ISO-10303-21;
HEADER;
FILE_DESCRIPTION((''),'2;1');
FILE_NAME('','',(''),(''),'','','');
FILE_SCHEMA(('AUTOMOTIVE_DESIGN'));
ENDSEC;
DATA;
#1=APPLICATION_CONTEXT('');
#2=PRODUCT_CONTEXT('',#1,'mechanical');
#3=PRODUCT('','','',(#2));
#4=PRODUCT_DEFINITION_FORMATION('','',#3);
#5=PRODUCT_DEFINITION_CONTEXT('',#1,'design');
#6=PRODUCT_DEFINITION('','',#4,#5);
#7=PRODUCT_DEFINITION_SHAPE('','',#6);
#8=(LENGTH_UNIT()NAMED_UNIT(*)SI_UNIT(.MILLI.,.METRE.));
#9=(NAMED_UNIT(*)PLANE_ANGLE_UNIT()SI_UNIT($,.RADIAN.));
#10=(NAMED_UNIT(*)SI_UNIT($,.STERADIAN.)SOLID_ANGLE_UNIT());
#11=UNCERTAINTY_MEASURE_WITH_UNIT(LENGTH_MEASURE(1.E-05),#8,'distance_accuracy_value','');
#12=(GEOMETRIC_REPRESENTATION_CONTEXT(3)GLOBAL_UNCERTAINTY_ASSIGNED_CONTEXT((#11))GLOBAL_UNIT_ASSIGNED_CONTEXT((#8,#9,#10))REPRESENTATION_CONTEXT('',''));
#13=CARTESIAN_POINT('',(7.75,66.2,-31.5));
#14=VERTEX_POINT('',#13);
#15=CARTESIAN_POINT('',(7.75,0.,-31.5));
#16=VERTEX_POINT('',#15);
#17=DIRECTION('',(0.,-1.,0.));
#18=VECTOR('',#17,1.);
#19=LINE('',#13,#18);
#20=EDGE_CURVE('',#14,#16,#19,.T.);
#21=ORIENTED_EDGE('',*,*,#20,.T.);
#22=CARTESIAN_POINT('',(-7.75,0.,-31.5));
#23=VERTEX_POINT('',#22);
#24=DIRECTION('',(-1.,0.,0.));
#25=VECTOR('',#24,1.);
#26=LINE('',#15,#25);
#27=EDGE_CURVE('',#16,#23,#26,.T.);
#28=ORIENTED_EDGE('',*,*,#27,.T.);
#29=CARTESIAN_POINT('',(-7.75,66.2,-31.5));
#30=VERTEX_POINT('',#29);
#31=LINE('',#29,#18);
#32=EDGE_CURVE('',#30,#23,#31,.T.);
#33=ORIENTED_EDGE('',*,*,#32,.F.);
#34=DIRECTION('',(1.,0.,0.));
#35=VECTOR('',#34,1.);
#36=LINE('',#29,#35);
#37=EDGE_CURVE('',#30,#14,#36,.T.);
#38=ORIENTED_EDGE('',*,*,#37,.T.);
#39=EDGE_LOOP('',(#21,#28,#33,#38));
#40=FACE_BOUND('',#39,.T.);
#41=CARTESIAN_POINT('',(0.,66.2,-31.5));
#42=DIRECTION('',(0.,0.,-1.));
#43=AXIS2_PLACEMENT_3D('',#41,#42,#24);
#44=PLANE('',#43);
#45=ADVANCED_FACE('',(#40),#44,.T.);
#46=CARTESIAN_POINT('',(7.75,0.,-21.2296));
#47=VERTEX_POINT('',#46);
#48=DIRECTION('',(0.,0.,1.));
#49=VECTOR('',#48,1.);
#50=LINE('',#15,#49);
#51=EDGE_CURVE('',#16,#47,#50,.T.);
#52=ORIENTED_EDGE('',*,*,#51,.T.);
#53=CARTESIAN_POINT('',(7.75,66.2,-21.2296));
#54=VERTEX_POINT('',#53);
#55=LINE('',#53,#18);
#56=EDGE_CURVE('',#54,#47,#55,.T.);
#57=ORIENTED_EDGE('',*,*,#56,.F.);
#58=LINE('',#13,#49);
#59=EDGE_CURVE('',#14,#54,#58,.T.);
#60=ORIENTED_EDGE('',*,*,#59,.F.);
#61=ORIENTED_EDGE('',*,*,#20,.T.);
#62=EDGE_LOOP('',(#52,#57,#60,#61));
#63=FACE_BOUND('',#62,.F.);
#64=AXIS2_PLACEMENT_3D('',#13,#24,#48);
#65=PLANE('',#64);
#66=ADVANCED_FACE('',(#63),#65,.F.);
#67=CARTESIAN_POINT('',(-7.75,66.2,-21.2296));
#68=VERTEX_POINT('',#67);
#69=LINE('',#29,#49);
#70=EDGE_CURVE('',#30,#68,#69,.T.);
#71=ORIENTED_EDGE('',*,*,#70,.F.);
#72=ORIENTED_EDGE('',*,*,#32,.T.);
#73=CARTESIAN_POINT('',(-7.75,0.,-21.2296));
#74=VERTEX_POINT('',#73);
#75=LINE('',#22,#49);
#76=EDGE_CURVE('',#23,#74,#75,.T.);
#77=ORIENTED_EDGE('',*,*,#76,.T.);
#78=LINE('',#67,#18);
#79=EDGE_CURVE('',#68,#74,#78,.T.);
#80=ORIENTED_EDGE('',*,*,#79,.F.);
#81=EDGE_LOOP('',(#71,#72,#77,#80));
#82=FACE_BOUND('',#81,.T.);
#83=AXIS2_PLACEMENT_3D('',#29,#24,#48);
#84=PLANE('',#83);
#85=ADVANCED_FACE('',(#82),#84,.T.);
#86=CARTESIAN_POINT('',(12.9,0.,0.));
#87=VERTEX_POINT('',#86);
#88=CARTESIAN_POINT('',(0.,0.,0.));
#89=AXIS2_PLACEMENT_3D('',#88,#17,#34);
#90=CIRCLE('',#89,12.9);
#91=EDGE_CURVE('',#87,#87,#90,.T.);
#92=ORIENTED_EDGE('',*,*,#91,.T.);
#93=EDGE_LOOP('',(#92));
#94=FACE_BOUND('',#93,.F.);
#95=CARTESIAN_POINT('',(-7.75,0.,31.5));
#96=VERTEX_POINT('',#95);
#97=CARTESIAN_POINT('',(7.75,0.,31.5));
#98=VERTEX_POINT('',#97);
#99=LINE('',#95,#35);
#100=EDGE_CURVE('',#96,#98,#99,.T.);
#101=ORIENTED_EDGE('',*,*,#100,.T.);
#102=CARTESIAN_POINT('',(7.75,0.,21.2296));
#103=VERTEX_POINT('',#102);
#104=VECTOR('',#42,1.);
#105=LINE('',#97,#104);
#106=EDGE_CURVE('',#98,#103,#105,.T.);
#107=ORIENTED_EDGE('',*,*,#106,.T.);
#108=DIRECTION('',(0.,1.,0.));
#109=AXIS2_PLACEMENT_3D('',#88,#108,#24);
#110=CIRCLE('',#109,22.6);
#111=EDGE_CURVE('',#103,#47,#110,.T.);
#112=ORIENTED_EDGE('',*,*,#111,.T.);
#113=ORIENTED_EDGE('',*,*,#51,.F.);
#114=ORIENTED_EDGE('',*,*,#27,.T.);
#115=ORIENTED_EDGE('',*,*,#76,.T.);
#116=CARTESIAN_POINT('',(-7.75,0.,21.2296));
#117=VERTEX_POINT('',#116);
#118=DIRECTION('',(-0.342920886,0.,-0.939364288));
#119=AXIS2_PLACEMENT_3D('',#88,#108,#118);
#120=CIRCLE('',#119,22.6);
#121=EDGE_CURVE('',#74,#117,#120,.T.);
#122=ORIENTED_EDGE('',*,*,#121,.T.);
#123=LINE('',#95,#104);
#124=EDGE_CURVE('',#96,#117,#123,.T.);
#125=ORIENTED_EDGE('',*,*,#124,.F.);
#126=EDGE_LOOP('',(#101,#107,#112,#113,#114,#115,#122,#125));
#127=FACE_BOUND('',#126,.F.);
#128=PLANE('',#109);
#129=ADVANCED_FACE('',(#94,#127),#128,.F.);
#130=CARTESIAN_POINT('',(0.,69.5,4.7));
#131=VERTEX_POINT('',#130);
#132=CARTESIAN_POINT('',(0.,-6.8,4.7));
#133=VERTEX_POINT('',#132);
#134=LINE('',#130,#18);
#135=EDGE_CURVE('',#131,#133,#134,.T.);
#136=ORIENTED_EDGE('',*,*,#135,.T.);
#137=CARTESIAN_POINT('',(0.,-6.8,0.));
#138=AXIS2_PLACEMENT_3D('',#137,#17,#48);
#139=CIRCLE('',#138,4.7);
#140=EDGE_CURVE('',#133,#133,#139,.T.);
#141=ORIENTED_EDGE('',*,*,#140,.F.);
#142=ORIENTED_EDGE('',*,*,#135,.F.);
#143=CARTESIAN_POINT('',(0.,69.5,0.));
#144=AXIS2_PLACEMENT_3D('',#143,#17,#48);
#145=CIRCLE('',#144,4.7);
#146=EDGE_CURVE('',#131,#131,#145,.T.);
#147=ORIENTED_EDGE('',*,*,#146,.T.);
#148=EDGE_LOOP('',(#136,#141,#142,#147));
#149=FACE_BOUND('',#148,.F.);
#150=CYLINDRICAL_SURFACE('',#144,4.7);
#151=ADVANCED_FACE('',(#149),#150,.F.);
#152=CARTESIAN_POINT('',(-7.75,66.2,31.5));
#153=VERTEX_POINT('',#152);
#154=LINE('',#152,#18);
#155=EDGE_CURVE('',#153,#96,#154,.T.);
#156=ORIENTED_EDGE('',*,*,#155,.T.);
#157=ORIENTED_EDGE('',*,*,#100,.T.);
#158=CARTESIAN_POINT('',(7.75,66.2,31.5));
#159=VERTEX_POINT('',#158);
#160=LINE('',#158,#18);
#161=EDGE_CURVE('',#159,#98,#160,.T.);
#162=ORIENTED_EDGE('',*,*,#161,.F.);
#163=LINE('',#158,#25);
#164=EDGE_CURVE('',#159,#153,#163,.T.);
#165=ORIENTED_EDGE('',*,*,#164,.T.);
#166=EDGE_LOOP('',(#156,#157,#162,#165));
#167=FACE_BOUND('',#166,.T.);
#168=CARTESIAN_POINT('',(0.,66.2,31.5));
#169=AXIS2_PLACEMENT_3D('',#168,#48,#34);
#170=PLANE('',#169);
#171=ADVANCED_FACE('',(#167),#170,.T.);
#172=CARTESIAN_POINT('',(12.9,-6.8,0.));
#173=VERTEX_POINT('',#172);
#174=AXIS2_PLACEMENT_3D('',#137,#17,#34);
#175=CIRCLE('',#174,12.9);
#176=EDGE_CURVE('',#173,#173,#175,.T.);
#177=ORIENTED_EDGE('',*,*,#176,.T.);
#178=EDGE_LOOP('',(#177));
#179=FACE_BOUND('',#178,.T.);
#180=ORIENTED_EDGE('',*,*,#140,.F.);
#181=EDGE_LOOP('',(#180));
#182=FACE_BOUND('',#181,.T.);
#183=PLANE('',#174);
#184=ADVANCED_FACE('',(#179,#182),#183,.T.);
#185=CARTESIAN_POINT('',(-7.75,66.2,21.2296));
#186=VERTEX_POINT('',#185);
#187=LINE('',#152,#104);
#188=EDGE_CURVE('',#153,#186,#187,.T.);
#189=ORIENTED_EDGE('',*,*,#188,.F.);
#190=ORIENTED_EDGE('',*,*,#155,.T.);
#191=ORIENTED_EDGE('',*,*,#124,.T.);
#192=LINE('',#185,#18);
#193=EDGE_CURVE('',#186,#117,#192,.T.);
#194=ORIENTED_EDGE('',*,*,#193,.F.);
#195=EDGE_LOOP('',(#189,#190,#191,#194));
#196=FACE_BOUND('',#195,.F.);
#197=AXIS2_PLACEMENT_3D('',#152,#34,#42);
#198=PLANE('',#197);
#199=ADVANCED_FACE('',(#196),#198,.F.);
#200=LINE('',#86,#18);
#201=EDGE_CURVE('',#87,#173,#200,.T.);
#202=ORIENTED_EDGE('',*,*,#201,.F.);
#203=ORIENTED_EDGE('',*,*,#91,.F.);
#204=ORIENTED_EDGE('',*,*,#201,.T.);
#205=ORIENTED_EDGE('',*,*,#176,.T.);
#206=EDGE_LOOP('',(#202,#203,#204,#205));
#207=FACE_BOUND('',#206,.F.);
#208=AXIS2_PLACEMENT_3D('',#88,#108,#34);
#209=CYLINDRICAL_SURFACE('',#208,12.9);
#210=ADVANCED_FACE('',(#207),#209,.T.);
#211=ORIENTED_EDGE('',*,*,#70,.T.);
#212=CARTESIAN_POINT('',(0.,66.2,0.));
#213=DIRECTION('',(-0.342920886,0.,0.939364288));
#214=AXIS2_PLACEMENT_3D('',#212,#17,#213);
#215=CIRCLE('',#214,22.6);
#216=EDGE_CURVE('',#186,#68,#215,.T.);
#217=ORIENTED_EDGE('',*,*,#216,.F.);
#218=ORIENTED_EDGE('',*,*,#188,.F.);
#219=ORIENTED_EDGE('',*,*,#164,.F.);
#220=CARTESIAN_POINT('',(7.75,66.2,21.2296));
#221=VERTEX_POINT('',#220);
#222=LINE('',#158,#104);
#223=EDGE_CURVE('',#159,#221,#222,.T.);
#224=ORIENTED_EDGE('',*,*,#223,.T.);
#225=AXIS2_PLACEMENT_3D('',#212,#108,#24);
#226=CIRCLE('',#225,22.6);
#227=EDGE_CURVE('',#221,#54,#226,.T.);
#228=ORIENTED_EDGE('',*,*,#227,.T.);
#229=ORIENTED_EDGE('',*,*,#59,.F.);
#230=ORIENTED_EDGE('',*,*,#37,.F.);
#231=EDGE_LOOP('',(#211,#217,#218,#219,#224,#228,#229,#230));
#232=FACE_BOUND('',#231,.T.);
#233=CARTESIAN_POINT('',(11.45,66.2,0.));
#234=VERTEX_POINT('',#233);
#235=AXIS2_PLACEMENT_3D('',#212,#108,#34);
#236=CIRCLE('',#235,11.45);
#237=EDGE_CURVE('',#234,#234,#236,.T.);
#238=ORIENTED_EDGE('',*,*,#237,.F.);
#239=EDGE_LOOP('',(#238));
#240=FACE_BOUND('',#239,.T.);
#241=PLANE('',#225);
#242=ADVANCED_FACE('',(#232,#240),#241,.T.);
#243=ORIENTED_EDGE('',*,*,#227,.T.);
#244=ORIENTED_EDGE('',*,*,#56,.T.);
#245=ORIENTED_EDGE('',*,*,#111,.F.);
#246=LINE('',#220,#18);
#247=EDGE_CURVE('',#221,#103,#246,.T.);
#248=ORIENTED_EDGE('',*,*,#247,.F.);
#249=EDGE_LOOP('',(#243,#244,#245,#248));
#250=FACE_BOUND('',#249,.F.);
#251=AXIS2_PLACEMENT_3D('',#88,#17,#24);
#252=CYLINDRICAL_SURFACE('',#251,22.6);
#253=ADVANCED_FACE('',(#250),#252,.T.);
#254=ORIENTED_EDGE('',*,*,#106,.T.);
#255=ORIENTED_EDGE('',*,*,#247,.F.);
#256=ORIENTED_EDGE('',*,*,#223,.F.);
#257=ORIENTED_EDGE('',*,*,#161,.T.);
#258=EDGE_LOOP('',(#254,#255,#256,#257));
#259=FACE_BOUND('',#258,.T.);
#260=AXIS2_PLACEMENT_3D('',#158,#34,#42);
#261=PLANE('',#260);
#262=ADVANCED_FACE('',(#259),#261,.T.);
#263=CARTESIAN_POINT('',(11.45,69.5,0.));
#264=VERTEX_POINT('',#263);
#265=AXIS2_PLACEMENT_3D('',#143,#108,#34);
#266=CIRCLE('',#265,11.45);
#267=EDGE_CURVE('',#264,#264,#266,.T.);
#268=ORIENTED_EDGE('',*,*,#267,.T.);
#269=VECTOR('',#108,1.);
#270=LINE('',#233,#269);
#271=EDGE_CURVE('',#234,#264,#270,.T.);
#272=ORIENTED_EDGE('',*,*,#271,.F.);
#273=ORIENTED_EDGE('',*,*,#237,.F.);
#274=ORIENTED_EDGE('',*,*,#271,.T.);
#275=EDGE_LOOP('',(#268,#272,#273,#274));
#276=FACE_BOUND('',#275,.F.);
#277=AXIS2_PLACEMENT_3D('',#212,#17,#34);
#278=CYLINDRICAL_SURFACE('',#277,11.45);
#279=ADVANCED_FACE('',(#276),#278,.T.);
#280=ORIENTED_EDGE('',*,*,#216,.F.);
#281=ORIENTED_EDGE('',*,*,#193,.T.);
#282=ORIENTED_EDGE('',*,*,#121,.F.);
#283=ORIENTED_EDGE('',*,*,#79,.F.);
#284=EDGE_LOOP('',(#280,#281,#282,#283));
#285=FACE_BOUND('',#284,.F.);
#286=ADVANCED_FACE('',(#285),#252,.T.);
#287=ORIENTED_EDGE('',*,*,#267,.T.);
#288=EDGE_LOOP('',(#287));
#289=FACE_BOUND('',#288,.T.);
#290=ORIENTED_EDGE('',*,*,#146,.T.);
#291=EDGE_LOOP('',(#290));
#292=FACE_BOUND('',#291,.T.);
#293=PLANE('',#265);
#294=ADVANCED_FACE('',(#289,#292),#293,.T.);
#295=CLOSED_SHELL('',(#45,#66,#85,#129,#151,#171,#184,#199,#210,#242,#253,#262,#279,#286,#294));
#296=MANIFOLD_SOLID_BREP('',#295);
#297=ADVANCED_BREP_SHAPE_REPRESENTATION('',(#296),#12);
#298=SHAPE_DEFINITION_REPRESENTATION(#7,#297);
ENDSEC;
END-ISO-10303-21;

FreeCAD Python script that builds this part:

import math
import FreeCAD as App
import Part
import Sketcher
from FreeCAD import Vector

doc = App.newDocument("Part")
body = doc.addObject("PartDesign::Body", "Body")

# Sketch on XZ plane
sketch1 = body.newObject("Sketcher::SketchObject", "Sketch")
sketch1.AttachmentSupport = (doc.getObject("XZ_Plane"), [""])
sketch1.MapMode = "FlatFace"
sketch1.addGeometry(Part.Circle(Vector(0, 0, 0), Vector(0, 0, 1), 23), False)
sketch1.addConstraint([
    Sketcher.Constraint("Coincident", 0, 3, -1, 1),
    Sketcher.Constraint("Diameter", 0, 45.2),
])
pad1 = body.newObject("PartDesign::Pad", "Pad")
pad1.Profile = sketch1
pad1.Length = 66.2
pad1.Reversed = True

# Sketch on XZ plane
sketch2 = body.newObject("Sketcher::SketchObject", "Sketch001")
sketch2.AttachmentSupport = (doc.getObject("XZ_Plane"), [""])
sketch2.MapMode = "FlatFace"
sketch2.AttachmentOffset = App.Placement(Vector(0, 0, -66.2), App.Rotation())
sketch2.addGeometry(Part.Circle(Vector(0, 0, 0), Vector(0, 0, 1), 11), False)
sketch2.addConstraint([
    Sketcher.Constraint("Coincident", 0, 3, -1, 1),
    Sketcher.Constraint("Diameter", 0, 22.9),
])
pad2 = body.newObject("PartDesign::Pad", "Pad001")
pad2.Profile = sketch2
pad2.Length = 3.3
pad2.Reversed = True

# Sketch on XZ plane
sketch3 = body.newObject("Sketcher::SketchObject", "Sketch002")
sketch3.AttachmentSupport = (doc.getObject("XZ_Plane"), [""])
sketch3.MapMode = "FlatFace"
sketch3.addGeometry(Part.Circle(Vector(0, 0, 0), Vector(0, 0, 1), 13), False)
sketch3.addConstraint([
    Sketcher.Constraint("Coincident", 0, 3, -1, 1),
    Sketcher.Constraint("Diameter", 0, 25.8),
])
pad3 = body.newObject("PartDesign::Pad", "Pad002")
pad3.Profile = sketch3
pad3.Length = 6.8

# Sketch on XZ plane
sketch4 = body.newObject("Sketcher::SketchObject", "Sketch003")
sketch4.AttachmentSupport = (doc.getObject("XZ_Plane"), [""])
sketch4.MapMode = "FlatFace"
sketch4.AttachmentOffset = App.Placement(Vector(0, 0, -69.5), App.Rotation())
sketch4.addGeometry(Part.Circle(Vector(0, 0, 0), Vector(0, 0, 1), 4.7), False)
sketch4.addConstraint([
    Sketcher.Constraint("Coincident", 0, 3, -1, 1),
    Sketcher.Constraint("Diameter", 0, 9.4),
])
doc.recompute()
hole = body.newObject("PartDesign::Hole", "Hole")
hole.Profile = sketch4
hole.ThreadType = "None"
hole.Diameter = 9.4
hole.DepthType = "Dimension"
hole.Depth = 92.25
hole.DrillPoint = "Angled"
hole.DrillPointAngle = 118
hole.Reversed = True

# Sketch on XZ plane
sketch5 = body.newObject("Sketcher::SketchObject", "Sketch004")
sketch5.AttachmentSupport = (doc.getObject("XZ_Plane"), [""])
sketch5.MapMode = "FlatFace"
sketch5.AttachmentOffset = App.Placement(Vector(0, 0, -66.2), App.Rotation())
sketch5.addGeometry([
    Part.ArcOfCircle(Part.Circle(Vector(0, 0, 0), Vector(0, 0, 1), 23), math.radians(-110), math.radians(-70)),  # 0
    Part.LineSegment(Vector(8, -21, 0), Vector(8, -32, 0)),  # 1
    Part.LineSegment(Vector(8, -32, 0), Vector(-8, -32, 0)),  # 2
    Part.LineSegment(Vector(-8, -32, 0), Vector(-8, -21, 0)),  # 3
    Part.LineSegment(Vector(8, 32, 0), Vector(8, 21, 0)),  # 4
    Part.ArcOfCircle(Part.Circle(Vector(0, 0, 0), Vector(0, 0, 1), 23), math.radians(70), math.radians(110)),  # 5
    Part.LineSegment(Vector(-8, 21, 0), Vector(-8, 32, 0)),  # 6
    Part.LineSegment(Vector(-8, 32, 0), Vector(8, 32, 0)),  # 7
], False)
sketch5.addConstraint([
    Sketcher.Constraint("Coincident", 0, 2, 1, 1),
    Sketcher.Constraint("Coincident", 1, 2, 2, 1),
    Sketcher.Constraint("Coincident", 2, 2, 3, 1),
    Sketcher.Constraint("Coincident", 3, 2, 0, 1),
    Sketcher.Constraint("Coincident", 4, 2, 5, 1),
    Sketcher.Constraint("Coincident", 5, 2, 6, 1),
    Sketcher.Constraint("Coincident", 6, 2, 7, 1),
    Sketcher.Constraint("Coincident", 7, 2, 4, 1),
    Sketcher.Constraint("Vertical", 1),
    Sketcher.Constraint("Horizontal", 2),
    Sketcher.Constraint("Vertical", 3),
    Sketcher.Constraint("Vertical", 4),
    Sketcher.Constraint("Vertical", 6),
    Sketcher.Constraint("Horizontal", 7),
    Sketcher.Constraint("Coincident", 0, 3, -1, 1),
    Sketcher.Constraint("Coincident", 5, 3, -1, 1),
    Sketcher.Constraint("Equal", 0, 5),
    Sketcher.Constraint("Symmetric", 1, 2, 6, 2, -1, 1),
    Sketcher.Constraint("Horizontal", 0, 2, 3, 2),
    Sketcher.Constraint("Horizontal", 4, 2, 5, 2),
    Sketcher.Constraint("Radius", 0, 22.6),
    Sketcher.Constraint("DistanceX", -1, 1, 0, 2, 7.75),
    Sketcher.Constraint("DistanceY", 1, 2, -1, 1, 31.5),
])
pad4 = body.newObject("PartDesign::Pad", "Pad003")
pad4.Profile = sketch5
pad4.Length = 66.2

doc.recompute()
